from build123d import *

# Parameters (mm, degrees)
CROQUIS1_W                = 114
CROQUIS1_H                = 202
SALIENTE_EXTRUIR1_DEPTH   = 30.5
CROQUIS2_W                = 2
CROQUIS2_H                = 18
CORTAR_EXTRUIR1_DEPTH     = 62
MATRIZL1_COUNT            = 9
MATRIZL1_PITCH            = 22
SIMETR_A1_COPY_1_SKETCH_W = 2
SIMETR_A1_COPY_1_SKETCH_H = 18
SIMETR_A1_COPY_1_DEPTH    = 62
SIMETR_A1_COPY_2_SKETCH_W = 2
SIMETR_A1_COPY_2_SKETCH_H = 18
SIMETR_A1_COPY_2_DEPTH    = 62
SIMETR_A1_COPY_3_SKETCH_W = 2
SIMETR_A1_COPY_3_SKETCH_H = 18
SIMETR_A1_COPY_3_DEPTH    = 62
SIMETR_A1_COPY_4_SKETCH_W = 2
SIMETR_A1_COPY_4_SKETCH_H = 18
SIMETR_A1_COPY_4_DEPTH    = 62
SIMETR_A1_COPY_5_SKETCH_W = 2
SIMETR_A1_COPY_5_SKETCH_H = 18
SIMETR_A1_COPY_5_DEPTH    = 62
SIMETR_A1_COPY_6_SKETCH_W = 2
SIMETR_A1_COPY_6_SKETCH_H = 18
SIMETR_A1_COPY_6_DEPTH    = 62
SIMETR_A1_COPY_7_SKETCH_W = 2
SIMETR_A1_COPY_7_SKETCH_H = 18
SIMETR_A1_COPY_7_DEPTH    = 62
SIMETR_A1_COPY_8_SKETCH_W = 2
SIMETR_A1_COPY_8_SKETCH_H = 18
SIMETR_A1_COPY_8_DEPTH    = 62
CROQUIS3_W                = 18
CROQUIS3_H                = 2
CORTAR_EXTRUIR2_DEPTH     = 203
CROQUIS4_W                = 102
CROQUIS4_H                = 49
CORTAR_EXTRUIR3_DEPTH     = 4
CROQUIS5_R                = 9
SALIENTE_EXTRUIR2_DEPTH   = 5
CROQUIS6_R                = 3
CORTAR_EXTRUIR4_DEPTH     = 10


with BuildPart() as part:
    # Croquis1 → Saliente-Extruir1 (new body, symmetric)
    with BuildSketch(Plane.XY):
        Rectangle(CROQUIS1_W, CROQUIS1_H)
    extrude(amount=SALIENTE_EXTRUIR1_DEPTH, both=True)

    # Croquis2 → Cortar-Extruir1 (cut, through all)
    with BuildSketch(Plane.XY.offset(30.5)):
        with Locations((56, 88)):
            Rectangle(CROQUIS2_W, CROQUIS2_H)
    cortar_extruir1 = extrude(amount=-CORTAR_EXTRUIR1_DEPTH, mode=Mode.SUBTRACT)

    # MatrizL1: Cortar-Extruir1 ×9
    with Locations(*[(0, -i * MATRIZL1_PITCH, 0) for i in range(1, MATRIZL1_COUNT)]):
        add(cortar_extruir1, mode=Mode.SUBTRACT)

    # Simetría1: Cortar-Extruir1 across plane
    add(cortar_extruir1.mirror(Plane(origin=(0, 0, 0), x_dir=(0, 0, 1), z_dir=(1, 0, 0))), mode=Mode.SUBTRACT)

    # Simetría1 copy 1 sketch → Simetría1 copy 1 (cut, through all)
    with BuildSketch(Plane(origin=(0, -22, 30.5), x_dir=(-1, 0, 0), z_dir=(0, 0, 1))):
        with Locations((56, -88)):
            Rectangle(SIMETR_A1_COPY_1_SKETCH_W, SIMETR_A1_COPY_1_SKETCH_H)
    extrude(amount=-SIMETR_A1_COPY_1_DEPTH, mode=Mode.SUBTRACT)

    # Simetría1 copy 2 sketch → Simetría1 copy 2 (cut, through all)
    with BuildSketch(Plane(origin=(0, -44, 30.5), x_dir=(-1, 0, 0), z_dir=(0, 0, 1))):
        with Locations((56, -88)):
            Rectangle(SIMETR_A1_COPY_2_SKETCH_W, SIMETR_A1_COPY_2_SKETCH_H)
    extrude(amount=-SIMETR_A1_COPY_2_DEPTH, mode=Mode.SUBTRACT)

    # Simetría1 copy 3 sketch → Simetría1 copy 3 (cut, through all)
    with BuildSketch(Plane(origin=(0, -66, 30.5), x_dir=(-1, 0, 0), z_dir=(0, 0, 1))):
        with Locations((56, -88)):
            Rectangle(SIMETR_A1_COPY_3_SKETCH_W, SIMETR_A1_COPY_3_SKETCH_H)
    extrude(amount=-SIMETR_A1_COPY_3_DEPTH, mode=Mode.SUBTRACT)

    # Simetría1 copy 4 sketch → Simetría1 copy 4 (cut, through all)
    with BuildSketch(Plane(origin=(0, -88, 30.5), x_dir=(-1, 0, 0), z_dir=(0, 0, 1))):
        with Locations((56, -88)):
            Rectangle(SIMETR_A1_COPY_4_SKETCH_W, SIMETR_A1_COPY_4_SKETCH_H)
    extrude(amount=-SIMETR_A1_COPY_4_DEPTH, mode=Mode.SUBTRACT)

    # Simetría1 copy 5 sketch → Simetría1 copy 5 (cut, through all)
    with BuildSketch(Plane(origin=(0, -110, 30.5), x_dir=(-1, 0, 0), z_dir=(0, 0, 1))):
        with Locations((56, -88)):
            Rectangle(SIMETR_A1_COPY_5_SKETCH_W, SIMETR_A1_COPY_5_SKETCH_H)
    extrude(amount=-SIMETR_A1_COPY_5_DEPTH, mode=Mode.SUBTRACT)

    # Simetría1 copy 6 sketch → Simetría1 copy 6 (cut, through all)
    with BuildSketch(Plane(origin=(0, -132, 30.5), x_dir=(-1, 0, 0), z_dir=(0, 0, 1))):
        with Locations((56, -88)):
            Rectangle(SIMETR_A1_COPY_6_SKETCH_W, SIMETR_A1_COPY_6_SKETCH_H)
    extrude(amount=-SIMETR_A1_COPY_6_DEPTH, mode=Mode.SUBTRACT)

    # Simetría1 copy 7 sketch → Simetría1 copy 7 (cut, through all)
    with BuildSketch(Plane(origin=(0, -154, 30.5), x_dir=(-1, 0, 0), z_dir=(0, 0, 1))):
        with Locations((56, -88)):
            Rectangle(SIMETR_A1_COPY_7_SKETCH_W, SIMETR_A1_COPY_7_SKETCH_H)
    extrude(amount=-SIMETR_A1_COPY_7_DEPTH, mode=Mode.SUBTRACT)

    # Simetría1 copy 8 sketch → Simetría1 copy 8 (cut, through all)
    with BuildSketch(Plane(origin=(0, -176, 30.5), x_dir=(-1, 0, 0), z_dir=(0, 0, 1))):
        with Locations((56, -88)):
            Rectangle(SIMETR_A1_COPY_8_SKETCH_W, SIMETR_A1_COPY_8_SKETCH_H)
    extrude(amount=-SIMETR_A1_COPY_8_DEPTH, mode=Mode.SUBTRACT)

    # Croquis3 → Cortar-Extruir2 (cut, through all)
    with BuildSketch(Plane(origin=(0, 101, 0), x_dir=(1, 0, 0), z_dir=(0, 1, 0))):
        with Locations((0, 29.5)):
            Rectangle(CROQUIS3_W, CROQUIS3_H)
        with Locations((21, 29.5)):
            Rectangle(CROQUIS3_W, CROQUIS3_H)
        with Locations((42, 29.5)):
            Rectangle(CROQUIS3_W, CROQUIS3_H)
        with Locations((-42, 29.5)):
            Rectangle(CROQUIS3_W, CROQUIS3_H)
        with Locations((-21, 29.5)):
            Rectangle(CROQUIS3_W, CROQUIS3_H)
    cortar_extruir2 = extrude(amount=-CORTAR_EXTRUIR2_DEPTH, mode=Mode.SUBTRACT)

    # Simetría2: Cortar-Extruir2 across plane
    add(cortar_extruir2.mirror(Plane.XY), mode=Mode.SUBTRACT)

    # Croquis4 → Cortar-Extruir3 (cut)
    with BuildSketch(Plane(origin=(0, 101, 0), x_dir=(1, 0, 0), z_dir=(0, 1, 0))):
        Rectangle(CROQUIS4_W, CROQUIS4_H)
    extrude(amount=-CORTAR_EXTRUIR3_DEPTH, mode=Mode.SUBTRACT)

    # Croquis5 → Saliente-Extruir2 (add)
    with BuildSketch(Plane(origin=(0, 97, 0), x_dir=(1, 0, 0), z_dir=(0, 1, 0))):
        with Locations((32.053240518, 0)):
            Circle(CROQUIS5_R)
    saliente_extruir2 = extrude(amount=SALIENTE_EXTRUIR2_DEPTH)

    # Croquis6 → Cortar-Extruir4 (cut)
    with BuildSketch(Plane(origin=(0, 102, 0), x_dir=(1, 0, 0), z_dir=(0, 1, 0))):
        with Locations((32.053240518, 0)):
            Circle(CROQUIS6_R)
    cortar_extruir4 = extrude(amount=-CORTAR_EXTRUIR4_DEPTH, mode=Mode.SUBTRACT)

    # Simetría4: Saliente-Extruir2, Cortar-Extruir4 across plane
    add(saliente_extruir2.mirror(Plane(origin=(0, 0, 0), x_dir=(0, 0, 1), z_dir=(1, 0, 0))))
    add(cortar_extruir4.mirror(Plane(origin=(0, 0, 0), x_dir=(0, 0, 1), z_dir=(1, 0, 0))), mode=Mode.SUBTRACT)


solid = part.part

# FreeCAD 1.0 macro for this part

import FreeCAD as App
import Part
import Sketcher

V = App.Vector
Q = App.Units.Quantity


def add_polygon(sketch, points):
    """Adds a closed chain of lines whose ends are joined by coincident constraints."""
    first, n = sketch.GeometryCount, len(points)
    for a, b in zip(points, points[1:] + points[:1]):
        sketch.addGeometry(Part.LineSegment(App.Vector(*a, 0), App.Vector(*b, 0)), False)
    for i in range(n):
        sketch.addConstraint(Sketcher.Constraint("Coincident", first + i, 2, first + (i + 1) % n, 1))

doc = App.newDocument("Part")
params = doc.addObject("Spreadsheet::Sheet", "Params")
for row, (alias, value) in enumerate([
    ("sketch1_width", "114 mm"),
    ("sketch1_height", "202 mm"),
    ("pad1_length", "61 mm"),
    ("sketch2_width", "2 mm"),
    ("sketch2_height", "18 mm"),
    ("linearpattern_pitch", "22 mm"),
    ("sketch3_width", "2 mm"),
    ("sketch3_height", "18 mm"),
    ("sketch4_width", "2 mm"),
    ("sketch4_height", "18 mm"),
    ("sketch5_width", "2 mm"),
    ("sketch5_height", "18 mm"),
    ("sketch6_width", "2 mm"),
    ("sketch6_height", "18 mm"),
    ("sketch7_width", "2 mm"),
    ("sketch7_height", "18 mm"),
    ("sketch8_width", "2 mm"),
    ("sketch8_height", "18 mm"),
    ("sketch9_width", "2 mm"),
    ("sketch9_height", "18 mm"),
    ("sketch10_width", "2 mm"),
    ("sketch10_height", "18 mm"),
    ("sketch11_width", "18 mm"),
    ("sketch11_height", "2 mm"),
    ("sketch12_width", "102 mm"),
    ("sketch12_height", "49 mm"),
    ("pocket11_length", "4 mm"),
    ("sketch13_diameter", "18 mm"),
    ("pad2_length", "5 mm"),
    ("sketch14_diameter", "6 mm"),
    ("pocket12_length", "10 mm"),
], start=1):
    params.set(f"A{row}", alias)
    params.set(f"B{row}", "=" + value)
    params.setAlias(f"B{row}", alias)

body = doc.addObject("PartDesign::Body", "Body")

sketch1 = doc.addObject("Sketcher::SketchObject", "Sketch")
body.addObject(sketch1)
sketch1.AttachmentSupport = (doc.XY_Plane, [""])
sketch1.MapMode = "FlatFace"
add_polygon(sketch1, [(-57, 101), (-57, -101), (57, -101), (57, 101)])
sketch1.addConstraint(Sketcher.Constraint("Vertical", 0))
sketch1.addConstraint(Sketcher.Constraint("Horizontal", 1))
sketch1.addConstraint(Sketcher.Constraint("Vertical", 2))
sketch1.addConstraint(Sketcher.Constraint("Horizontal", 3))
sketch1.addConstraint(Sketcher.Constraint("Symmetric", 0, 2, 2, 2, -1, 1))
sketch1.addConstraint(Sketcher.Constraint("DistanceX", 1, 1, 1, 2, Q("114 mm")))
sketch1.addConstraint(Sketcher.Constraint("DistanceY", 0, 2, 0, 1, Q("202 mm")))
sketch1.setExpression("Constraints[9]", "Params.sketch1_width")
sketch1.setExpression("Constraints[10]", "Params.sketch1_height")
pad1 = doc.addObject("PartDesign::Pad", "Pad")
body.addObject(pad1)
pad1.Profile = sketch1
pad1.setExpression("Length", "Params.pad1_length")
pad1.Midplane = True

sketch2 = doc.addObject("Sketcher::SketchObject", "Sketch001")
body.addObject(sketch2)
sketch2.AttachmentSupport = (doc.XY_Plane, [""])
sketch2.MapMode = "FlatFace"
sketch2.AttachmentOffset = App.Placement(V(0, 0, 30.5), App.Rotation())
add_polygon(sketch2, [(55, 97), (55, 79), (57, 79), (57, 97)])
sketch2.addConstraint(Sketcher.Constraint("Vertical", 0))
sketch2.addConstraint(Sketcher.Constraint("Horizontal", 1))
sketch2.addConstraint(Sketcher.Constraint("Vertical", 2))
sketch2.addConstraint(Sketcher.Constraint("Horizontal", 3))
sketch2.addConstraint(Sketcher.Constraint("DistanceX", 1, 1, 1, 2, Q("2 mm")))
sketch2.addConstraint(Sketcher.Constraint("DistanceY", 0, 2, 0, 1, Q("18 mm")))
sketch2.addConstraint(Sketcher.Constraint("DistanceX", -1, 1, 0, 2, Q("55 mm")))
sketch2.addConstraint(Sketcher.Constraint("DistanceY", -1, 1, 0, 2, Q("79 mm")))
sketch2.setExpression("Constraints[8]", "Params.sketch2_width")
sketch2.setExpression("Constraints[9]", "Params.sketch2_height")
pocket1 = doc.addObject("PartDesign::Pocket", "Pocket")
body.addObject(pocket1)
pocket1.Profile = sketch2
pocket1.Type = "ThroughAll"
doc.recompute()

linearpattern = doc.addObject("PartDesign::LinearPattern", "LinearPattern")
body.addObject(linearpattern)
linearpattern.Originals = [pocket1]
linearpattern.Direction = (doc.Y_Axis, [""])
linearpattern.Mode = "offset"
linearpattern.setExpression("Offset", "Params.linearpattern_pitch")
linearpattern.Occurrences = 9
linearpattern.Reversed = True
body.Tip = linearpattern
doc.recompute()

mirrored = doc.addObject("PartDesign::Mirrored", "Mirrored")
body.addObject(mirrored)
mirrored.Originals = [pocket1]
mirrored.MirrorPlane = (doc.YZ_Plane, [""])
body.Tip = mirrored

sketch3 = doc.addObject("Sketcher::SketchObject", "Sketch002")
body.addObject(sketch3)
sketch3.AttachmentSupport = (doc.XY_Plane, [""])
sketch3.MapMode = "FlatFace"
sketch3.AttachmentOffset = App.Placement(V(0, 0, 30.5), App.Rotation())
add_polygon(sketch3, [(-55, 57), (-55, 75), (-57, 75), (-57, 57)])
sketch3.addConstraint(Sketcher.Constraint("Vertical", 0))
sketch3.addConstraint(Sketcher.Constraint("Horizontal", 1))
sketch3.addConstraint(Sketcher.Constraint("Vertical", 2))
sketch3.addConstraint(Sketcher.Constraint("Horizontal", 3))
sketch3.addConstraint(Sketcher.Constraint("DistanceX", 1, 2, 1, 1, Q("2 mm")))
sketch3.addConstraint(Sketcher.Constraint("DistanceY", 0, 1, 0, 2, Q("18 mm")))
sketch3.addConstraint(Sketcher.Constraint("DistanceX", 0, 2, -1, 1, Q("55 mm")))
sketch3.addConstraint(Sketcher.Constraint("DistanceY", -1, 1, 0, 2, Q("75 mm")))
sketch3.setExpression("Constraints[8]", "Params.sketch3_width")
sketch3.setExpression("Constraints[9]", "Params.sketch3_height")
pocket2 = doc.addObject("PartDesign::Pocket", "Pocket001")
body.addObject(pocket2)
pocket2.Profile = sketch3
pocket2.Type = "ThroughAll"

sketch4 = doc.addObject("Sketcher::SketchObject", "Sketch003")
body.addObject(sketch4)
sketch4.AttachmentSupport = (doc.XY_Plane, [""])
sketch4.MapMode = "FlatFace"
sketch4.AttachmentOffset = App.Placement(V(0, 0, 30.5), App.Rotation())
add_polygon(sketch4, [(-55, 35), (-55, 53), (-57, 53), (-57, 35)])
sketch4.addConstraint(Sketcher.Constraint("Vertical", 0))
sketch4.addConstraint(Sketcher.Constraint("Horizontal", 1))
sketch4.addConstraint(Sketcher.Constraint("Vertical", 2))
sketch4.addConstraint(Sketcher.Constraint("Horizontal", 3))
sketch4.addConstraint(Sketcher.Constraint("DistanceX", 1, 2, 1, 1, Q("2 mm")))
sketch4.addConstraint(Sketcher.Constraint("DistanceY", 0, 1, 0, 2, Q("18 mm")))
sketch4.addConstraint(Sketcher.Constraint("DistanceX", 0, 2, -1, 1, Q("55 mm")))
sketch4.addConstraint(Sketcher.Constraint("DistanceY", -1, 1, 0, 2, Q("53 mm")))
sketch4.setExpression("Constraints[8]", "Params.sketch4_width")
sketch4.setExpression("Constraints[9]", "Params.sketch4_height")
pocket3 = doc.addObject("PartDesign::Pocket", "Pocket002")
body.addObject(pocket3)
pocket3.Profile = sketch4
pocket3.Type = "ThroughAll"

sketch5 = doc.addObject("Sketcher::SketchObject", "Sketch004")
body.addObject(sketch5)
sketch5.AttachmentSupport = (doc.XY_Plane, [""])
sketch5.MapMode = "FlatFace"
sketch5.AttachmentOffset = App.Placement(V(0, 0, 30.5), App.Rotation())
add_polygon(sketch5, [(-55, 13), (-55, 31), (-57, 31), (-57, 13)])
sketch5.addConstraint(Sketcher.Constraint("Vertical", 0))
sketch5.addConstraint(Sketcher.Constraint("Horizontal", 1))
sketch5.addConstraint(Sketcher.Constraint("Vertical", 2))
sketch5.addConstraint(Sketcher.Constraint("Horizontal", 3))
sketch5.addConstraint(Sketcher.Constraint("DistanceX", 1, 2, 1, 1, Q("2 mm")))
sketch5.addConstraint(Sketcher.Constraint("DistanceY", 0, 1, 0, 2, Q("18 mm")))
sketch5.addConstraint(Sketcher.Constraint("DistanceX", 0, 2, -1, 1, Q("55 mm")))
sketch5.addConstraint(Sketcher.Constraint("DistanceY", -1, 1, 0, 2, Q("31 mm")))
sketch5.setExpression("Constraints[8]", "Params.sketch5_width")
sketch5.setExpression("Constraints[9]", "Params.sketch5_height")
pocket4 = doc.addObject("PartDesign::Pocket", "Pocket003")
body.addObject(pocket4)
pocket4.Profile = sketch5
pocket4.Type = "ThroughAll"

sketch6 = doc.addObject("Sketcher::SketchObject", "Sketch005")
body.addObject(sketch6)
sketch6.AttachmentSupport = (doc.XY_Plane, [""])
sketch6.MapMode = "FlatFace"
sketch6.AttachmentOffset = App.Placement(V(0, 0, 30.5), App.Rotation())
add_polygon(sketch6, [(-55, -9), (-55, 9), (-57, 9), (-57, -9)])
sketch6.addConstraint(Sketcher.Constraint("Vertical", 0))
sketch6.addConstraint(Sketcher.Constraint("Horizontal", 1))
sketch6.addConstraint(Sketcher.Constraint("Vertical", 2))
sketch6.addConstraint(Sketcher.Constraint("Horizontal", 3))
sketch6.addConstraint(Sketcher.Constraint("DistanceX", 1, 2, 1, 1, Q("2 mm")))
sketch6.addConstraint(Sketcher.Constraint("DistanceY", 0, 1, 0, 2, Q("18 mm")))
sketch6.addConstraint(Sketcher.Constraint("DistanceX", 0, 2, -1, 1, Q("55 mm")))
sketch6.addConstraint(Sketcher.Constraint("DistanceY", -1, 1, 0, 2, Q("9 mm")))
sketch6.setExpression("Constraints[8]", "Params.sketch6_width")
sketch6.setExpression("Constraints[9]", "Params.sketch6_height")
pocket5 = doc.addObject("PartDesign::Pocket", "Pocket004")
body.addObject(pocket5)
pocket5.Profile = sketch6
pocket5.Type = "ThroughAll"

sketch7 = doc.addObject("Sketcher::SketchObject", "Sketch006")
body.addObject(sketch7)
sketch7.AttachmentSupport = (doc.XY_Plane, [""])
sketch7.MapMode = "FlatFace"
sketch7.AttachmentOffset = App.Placement(V(0, 0, 30.5), App.Rotation())
add_polygon(sketch7, [(-55, -31), (-55, -13), (-57, -13), (-57, -31)])
sketch7.addConstraint(Sketcher.Constraint("Vertical", 0))
sketch7.addConstraint(Sketcher.Constraint("Horizontal", 1))
sketch7.addConstraint(Sketcher.Constraint("Vertical", 2))
sketch7.addConstraint(Sketcher.Constraint("Horizontal", 3))
sketch7.addConstraint(Sketcher.Constraint("DistanceX", 1, 2, 1, 1, Q("2 mm")))
sketch7.addConstraint(Sketcher.Constraint("DistanceY", 0, 1, 0, 2, Q("18 mm")))
sketch7.addConstraint(Sketcher.Constraint("DistanceX", 0, 2, -1, 1, Q("55 mm")))
sketch7.addConstraint(Sketcher.Constraint("DistanceY", 0, 2, -1, 1, Q("13 mm")))
sketch7.setExpression("Constraints[8]", "Params.sketch7_width")
sketch7.setExpression("Constraints[9]", "Params.sketch7_height")
pocket6 = doc.addObject("PartDesign::Pocket", "Pocket005")
body.addObject(pocket6)
pocket6.Profile = sketch7
pocket6.Type = "ThroughAll"

sketch8 = doc.addObject("Sketcher::SketchObject", "Sketch007")
body.addObject(sketch8)
sketch8.AttachmentSupport = (doc.XY_Plane, [""])
sketch8.MapMode = "FlatFace"
sketch8.AttachmentOffset = App.Placement(V(0, 0, 30.5), App.Rotation())
add_polygon(sketch8, [(-55, -53), (-55, -35), (-57, -35), (-57, -53)])
sketch8.addConstraint(Sketcher.Constraint("Vertical", 0))
sketch8.addConstraint(Sketcher.Constraint("Horizontal", 1))
sketch8.addConstraint(Sketcher.Constraint("Vertical", 2))
sketch8.addConstraint(Sketcher.Constraint("Horizontal", 3))
sketch8.addConstraint(Sketcher.Constraint("DistanceX", 1, 2, 1, 1, Q("2 mm")))
sketch8.addConstraint(Sketcher.Constraint("DistanceY", 0, 1, 0, 2, Q("18 mm")))
sketch8.addConstraint(Sketcher.Constraint("DistanceX", 0, 2, -1, 1, Q("55 mm")))
sketch8.addConstraint(Sketcher.Constraint("DistanceY", 0, 2, -1, 1, Q("35 mm")))
sketch8.setExpression("Constraints[8]", "Params.sketch8_width")
sketch8.setExpression("Constraints[9]", "Params.sketch8_height")
pocket7 = doc.addObject("PartDesign::Pocket", "Pocket006")
body.addObject(pocket7)
pocket7.Profile = sketch8
pocket7.Type = "ThroughAll"

sketch9 = doc.addObject("Sketcher::SketchObject", "Sketch008")
body.addObject(sketch9)
sketch9.AttachmentSupport = (doc.XY_Plane, [""])
sketch9.MapMode = "FlatFace"
sketch9.AttachmentOffset = App.Placement(V(0, 0, 30.5), App.Rotation())
add_polygon(sketch9, [(-55, -75), (-55, -57), (-57, -57), (-57, -75)])
sketch9.addConstraint(Sketcher.Constraint("Vertical", 0))
sketch9.addConstraint(Sketcher.Constraint("Horizontal", 1))
sketch9.addConstraint(Sketcher.Constraint("Vertical", 2))
sketch9.addConstraint(Sketcher.Constraint("Horizontal", 3))
sketch9.addConstraint(Sketcher.Constraint("DistanceX", 1, 2, 1, 1, Q("2 mm")))
sketch9.addConstraint(Sketcher.Constraint("DistanceY", 0, 1, 0, 2, Q("18 mm")))
sketch9.addConstraint(Sketcher.Constraint("DistanceX", 0, 2, -1, 1, Q("55 mm")))
sketch9.addConstraint(Sketcher.Constraint("DistanceY", 0, 2, -1, 1, Q("57 mm")))
sketch9.setExpression("Constraints[8]", "Params.sketch9_width")
sketch9.setExpression("Constraints[9]", "Params.sketch9_height")
pocket8 = doc.addObject("PartDesign::Pocket", "Pocket007")
body.addObject(pocket8)
pocket8.Profile = sketch9
pocket8.Type = "ThroughAll"

sketch10 = doc.addObject("Sketcher::SketchObject", "Sketch009")
body.addObject(sketch10)
sketch10.AttachmentSupport = (doc.XY_Plane, [""])
sketch10.MapMode = "FlatFace"
sketch10.AttachmentOffset = App.Placement(V(0, 0, 30.5), App.Rotation())
add_polygon(sketch10, [(-55, -97), (-55, -79), (-57, -79), (-57, -97)])
sketch10.addConstraint(Sketcher.Constraint("Vertical", 0))
sketch10.addConstraint(Sketcher.Constraint("Horizontal", 1))
sketch10.addConstraint(Sketcher.Constraint("Vertical", 2))
sketch10.addConstraint(Sketcher.Constraint("Horizontal", 3))
sketch10.addConstraint(Sketcher.Constraint("DistanceX", 1, 2, 1, 1, Q("2 mm")))
sketch10.addConstraint(Sketcher.Constraint("DistanceY", 0, 1, 0, 2, Q("18 mm")))
sketch10.addConstraint(Sketcher.Constraint("DistanceX", 0, 2, -1, 1, Q("55 mm")))
sketch10.addConstraint(Sketcher.Constraint("DistanceY", 0, 2, -1, 1, Q("79 mm")))
sketch10.setExpression("Constraints[8]", "Params.sketch10_width")
sketch10.setExpression("Constraints[9]", "Params.sketch10_height")
pocket9 = doc.addObject("PartDesign::Pocket", "Pocket008")
body.addObject(pocket9)
pocket9.Profile = sketch10
pocket9.Type = "ThroughAll"

sketch11 = doc.addObject("Sketcher::SketchObject", "Sketch010")
body.addObject(sketch11)
sketch11.AttachmentSupport = (doc.XZ_Plane, [""])
sketch11.MapMode = "FlatFace"
sketch11.AttachmentOffset = App.Placement(V(0, 0, -101), App.Rotation())
add_polygon(sketch11, [(-9, -30.5), (-9, -28.5), (9, -28.5), (9, -30.5)])
add_polygon(sketch11, [(12, -30.5), (12, -28.5), (30, -28.5), (30, -30.5)])
add_polygon(sketch11, [(33, -30.5), (33, -28.5), (51, -28.5), (51, -30.5)])
add_polygon(sketch11, [(-51, -30.5), (-51, -28.5), (-33, -28.5), (-33, -30.5)])
add_polygon(sketch11, [(-30, -30.5), (-30, -28.5), (-12, -28.5), (-12, -30.5)])
sketch11.addConstraint(Sketcher.Constraint("Vertical", 0))
sketch11.addConstraint(Sketcher.Constraint("Horizontal", 1))
sketch11.addConstraint(Sketcher.Constraint("Vertical", 2))
sketch11.addConstraint(Sketcher.Constraint("Horizontal", 3))
sketch11.addConstraint(Sketcher.Constraint("Vertical", 4))
sketch11.addConstraint(Sketcher.Constraint("Horizontal", 5))
sketch11.addConstraint(Sketcher.Constraint("Vertical", 6))
sketch11.addConstraint(Sketcher.Constraint("Horizontal", 7))
sketch11.addConstraint(Sketcher.Constraint("Vertical", 8))
sketch11.addConstraint(Sketcher.Constraint("Horizontal", 9))
sketch11.addConstraint(Sketcher.Constraint("Vertical", 10))
sketch11.addConstraint(Sketcher.Constraint("Horizontal", 11))
sketch11.addConstraint(Sketcher.Constraint("Vertical", 12))
sketch11.addConstraint(Sketcher.Constraint("Horizontal", 13))
sketch11.addConstraint(Sketcher.Constraint("Vertical", 14))
sketch11.addConstraint(Sketcher.Constraint("Horizontal", 15))
sketch11.addConstraint(Sketcher.Constraint("Vertical", 16))
sketch11.addConstraint(Sketcher.Constraint("Horizontal", 17))
sketch11.addConstraint(Sketcher.Constraint("Vertical", 18))
sketch11.addConstraint(Sketcher.Constraint("Horizontal", 19))
sketch11.addConstraint(Sketcher.Constraint("Symmetric", 9, 2, 12, 2, -2))
sketch11.addConstraint(Sketcher.Constraint("Symmetric", 11, 2, 14, 2, -2))
sketch11.addConstraint(Sketcher.Constraint("Symmetric", 5, 2, 16, 2, -2))
sketch11.addConstraint(Sketcher.Constraint("Symmetric", 7, 2, 18, 2, -2))
sketch11.addConstraint(Sketcher.Constraint("Horizontal", 1, 2, 4, 2))
sketch11.addConstraint(Sketcher.Constraint("Horizontal", 3, 2, 6, 2))
sketch11.addConstraint(Sketcher.Constraint("Horizontal", 5, 2, 8, 2))
sketch11.addConstraint(Sketcher.Constraint("Horizontal", 7, 2, 10, 2))
sketch11.addConstraint(Sketcher.Constraint("Equal", 3, 5))
sketch11.addConstraint(Sketcher.Constraint("Equal", 7, 9))
sketch11.addConstraint(Sketcher.Constraint("DistanceX", 1, 1, 1, 2, Q("18 mm")))
sketch11.addConstraint(Sketcher.Constraint("DistanceY", 0, 1, 0, 2, Q("2 mm")))
sketch11.addConstraint(Sketcher.Constraint("DistanceX", 0, 2, -1, 1, Q("9 mm")))
sketch11.addConstraint(Sketcher.Constraint("DistanceX", -1, 1, 4, 2, Q("12 mm")))
sketch11.addConstraint(Sketcher.Constraint("DistanceX", -1, 1, 8, 2, Q("33 mm")))
sketch11.addConstraint(Sketcher.Constraint("DistanceY", 0, 2, -1, 1, Q("28.5 mm")))
sketch11.setExpression("Constraints[50]", "Params.sketch11_width")
sketch11.setExpression("Constraints[51]", "Params.sketch11_height")
pocket10 = doc.addObject("PartDesign::Pocket", "Pocket009")
body.addObject(pocket10)
pocket10.Profile = sketch11
pocket10.Type = "ThroughAll"
pocket10.Reversed = True
doc.recompute()

mirrored2 = doc.addObject("PartDesign::Mirrored", "Mirrored001")
body.addObject(mirrored2)
mirrored2.Originals = [pocket10]
mirrored2.MirrorPlane = (doc.XY_Plane, [""])
body.Tip = mirrored2

sketch12 = doc.addObject("Sketcher::SketchObject", "Sketch011")
body.addObject(sketch12)
sketch12.AttachmentSupport = (doc.XZ_Plane, [""])
sketch12.MapMode = "FlatFace"
sketch12.AttachmentOffset = App.Placement(V(0, 0, -101), App.Rotation())
add_polygon(sketch12, [(-51, -24), (-51, 24), (51, 24), (51, -24)])
sketch12.addConstraint(Sketcher.Constraint("Vertical", 0))
sketch12.addConstraint(Sketcher.Constraint("Horizontal", 1))
sketch12.addConstraint(Sketcher.Constraint("Vertical", 2))
sketch12.addConstraint(Sketcher.Constraint("Horizontal", 3))
sketch12.addConstraint(Sketcher.Constraint("Symmetric", 0, 2, 2, 2, -1, 1))
sketch12.addConstraint(Sketcher.Constraint("DistanceX", 1, 1, 1, 2, Q("102 mm")))
sketch12.addConstraint(Sketcher.Constraint("DistanceY", 0, 1, 0, 2, Q("49 mm")))
sketch12.setExpression("Constraints[9]", "Params.sketch12_width")
sketch12.setExpression("Constraints[10]", "Params.sketch12_height")
pocket11 = doc.addObject("PartDesign::Pocket", "Pocket010")
body.addObject(pocket11)
pocket11.Profile = sketch12
pocket11.setExpression("Length", "Params.pocket11_length")
pocket11.Reversed = True

sketch13 = doc.addObject("Sketcher::SketchObject", "Sketch012")
body.addObject(sketch13)
sketch13.AttachmentSupport = (doc.XZ_Plane, [""])
sketch13.MapMode = "FlatFace"
sketch13.AttachmentOffset = App.Placement(V(0, 0, -97), App.Rotation())
sketch13.addGeometry(Part.Circle(V(32, 0, 0), V(0, 0, 1), 9), False)
sketch13.addConstraint(Sketcher.Constraint("PointOnObject", 0, 3, -1))
sketch13.addConstraint(Sketcher.Constraint("Diameter", 0, Q("18 mm")))
sketch13.addConstraint(Sketcher.Constraint("DistanceX", -1, 1, 0, 3, Q("32.053241 mm")))
sketch13.setExpression("Constraints[1]", "Params.sketch13_diameter")
pad2 = doc.addObject("PartDesign::Pad", "Pad001")
body.addObject(pad2)
pad2.Profile = sketch13
pad2.setExpression("Length", "Params.pad2_length")
pad2.Reversed = True

sketch14 = doc.addObject("Sketcher::SketchObject", "Sketch013")
body.addObject(sketch14)
sketch14.AttachmentSupport = (doc.XZ_Plane, [""])
sketch14.MapMode = "FlatFace"
sketch14.AttachmentOffset = App.Placement(V(0, 0, -102), App.Rotation())
sketch14.addGeometry(Part.Circle(V(32.1, 0, 0), V(0, 0, 1), 3), False)
sketch14.addConstraint(Sketcher.Constraint("PointOnObject", 0, 3, -1))
sketch14.addConstraint(Sketcher.Constraint("Diameter", 0, Q("6 mm")))
sketch14.addConstraint(Sketcher.Constraint("DistanceX", -1, 1, 0, 3, Q("32.053241 mm")))
sketch14.setExpression("Constraints[1]", "Params.sketch14_diameter")
pocket12 = doc.addObject("PartDesign::Pocket", "Pocket011")
body.addObject(pocket12)
pocket12.Profile = sketch14
pocket12.setExpression("Length", "Params.pocket12_length")
pocket12.Reversed = True
doc.recompute()

mirrored3 = doc.addObject("PartDesign::Mirrored", "Mirrored002")
body.addObject(mirrored3)
mirrored3.Originals = [pad2, pocket12]
mirrored3.MirrorPlane = (doc.YZ_Plane, [""])
body.Tip = mirrored3

doc.recompute()
